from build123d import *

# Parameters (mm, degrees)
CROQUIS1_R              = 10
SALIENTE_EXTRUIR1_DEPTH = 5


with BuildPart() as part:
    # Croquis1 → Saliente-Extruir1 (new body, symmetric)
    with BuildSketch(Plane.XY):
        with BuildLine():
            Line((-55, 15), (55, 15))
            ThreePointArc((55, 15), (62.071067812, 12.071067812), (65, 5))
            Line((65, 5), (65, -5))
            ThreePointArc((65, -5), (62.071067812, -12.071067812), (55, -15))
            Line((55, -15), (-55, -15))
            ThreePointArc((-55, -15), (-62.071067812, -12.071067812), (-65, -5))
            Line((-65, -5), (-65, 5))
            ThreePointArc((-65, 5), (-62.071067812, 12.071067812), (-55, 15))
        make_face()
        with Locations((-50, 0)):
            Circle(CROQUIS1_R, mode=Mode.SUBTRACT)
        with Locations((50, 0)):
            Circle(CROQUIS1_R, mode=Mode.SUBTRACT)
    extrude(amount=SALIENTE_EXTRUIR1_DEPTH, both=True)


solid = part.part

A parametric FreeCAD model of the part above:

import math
import FreeCAD as App
import Part
import Sketcher
from FreeCAD import Vector

doc = App.newDocument("Part")
body = doc.addObject("PartDesign::Body", "Body")

# Sketch on XY plane
sketch1 = body.newObject("Sketcher::SketchObject", "Sketch")
sketch1.AttachmentSupport = (doc.getObject("XY_Plane"), [""])
sketch1.MapMode = "FlatFace"
sketch1.addGeometry([
    Part.LineSegment(Vector(55, 15, 0), Vector(-55, 15, 0)),  # 0
    Part.ArcOfCircle(Part.Circle(Vector(-55, 5, 0), Vector(0, 0, 1), 10), math.radians(90), math.radians(180)),  # 1
    Part.LineSegment(Vector(-65, 5, 0), Vector(-65, -5, 0)),  # 2
    Part.ArcOfCircle(Part.Circle(Vector(-55, -5, 0), Vector(0, 0, 1), 10), math.radians(180), math.radians(270)),  # 3
    Part.LineSegment(Vector(-55, -15, 0), Vector(55, -15, 0)),  # 4
    Part.ArcOfCircle(Part.Circle(Vector(55, -5, 0), Vector(0, 0, 1), 10), math.radians(-90), math.radians(0)),  # 5
    Part.LineSegment(Vector(65, -5, 0), Vector(65, 5, 0)),  # 6
    Part.ArcOfCircle(Part.Circle(Vector(55, 5, 0), Vector(0, 0, 1), 10), math.radians(0), math.radians(90)),  # 7
    Part.Circle(Vector(50, 0, 0), Vector(0, 0, 1), 10),  # 8
    Part.Circle(Vector(-50, 0, 0), Vector(0, 0, 1), 10),  # 9
], False)
sketch1.addConstraint([
    Sketcher.Constraint("Tangent", 0, 2, 1, 1),
    Sketcher.Constraint("Tangent", 1, 2, 2, 1),
    Sketcher.Constraint("Tangent", 2, 2, 3, 1),
    Sketcher.Constraint("Tangent", 3, 2, 4, 1),
    Sketcher.Constraint("Tangent", 4, 2, 5, 1),
    Sketcher.Constraint("Tangent", 5, 2, 6, 1),
    Sketcher.Constraint("Tangent", 6, 2, 7, 1),
    Sketcher.Constraint("Tangent", 7, 2, 0, 1),
    Sketcher.Constraint("Horizontal", 0),
    Sketcher.Constraint("Vertical", 2),
    Sketcher.Constraint("Horizontal", 4),
    Sketcher.Constraint("Vertical", 6),
    Sketcher.Constraint("Equal", 1, 3),
    Sketcher.Constraint("Equal", 3, 5),
    Sketcher.Constraint("Equal", 5, 7),
    Sketcher.Constraint("Equal", 7, 8),
    Sketcher.Constraint("Equal", 8, 9),
    Sketcher.Constraint("Symmetric", 1, 3, 5, 3, -1, 1),
    Sketcher.Constraint("Symmetric", 8, 3, 9, 3, -1, 1),
    Sketcher.Constraint("PointOnObject", 8, 3, -1),
    Sketcher.Constraint("Diameter", 8, 20.0),
    Sketcher.Constraint("DistanceX", 0, 2, 0, 1, 110.0),
    Sketcher.Constraint("DistanceY", 2, 2, 2, 1, 10.0),
    Sketcher.Constraint("DistanceX", -1, 1, 8, 3, 50.0),
])
pad1 = body.newObject("PartDesign::Pad", "Pad")
pad1.Profile = sketch1
pad1.Length = 10
pad1.Midplane = True

doc.recompute()
